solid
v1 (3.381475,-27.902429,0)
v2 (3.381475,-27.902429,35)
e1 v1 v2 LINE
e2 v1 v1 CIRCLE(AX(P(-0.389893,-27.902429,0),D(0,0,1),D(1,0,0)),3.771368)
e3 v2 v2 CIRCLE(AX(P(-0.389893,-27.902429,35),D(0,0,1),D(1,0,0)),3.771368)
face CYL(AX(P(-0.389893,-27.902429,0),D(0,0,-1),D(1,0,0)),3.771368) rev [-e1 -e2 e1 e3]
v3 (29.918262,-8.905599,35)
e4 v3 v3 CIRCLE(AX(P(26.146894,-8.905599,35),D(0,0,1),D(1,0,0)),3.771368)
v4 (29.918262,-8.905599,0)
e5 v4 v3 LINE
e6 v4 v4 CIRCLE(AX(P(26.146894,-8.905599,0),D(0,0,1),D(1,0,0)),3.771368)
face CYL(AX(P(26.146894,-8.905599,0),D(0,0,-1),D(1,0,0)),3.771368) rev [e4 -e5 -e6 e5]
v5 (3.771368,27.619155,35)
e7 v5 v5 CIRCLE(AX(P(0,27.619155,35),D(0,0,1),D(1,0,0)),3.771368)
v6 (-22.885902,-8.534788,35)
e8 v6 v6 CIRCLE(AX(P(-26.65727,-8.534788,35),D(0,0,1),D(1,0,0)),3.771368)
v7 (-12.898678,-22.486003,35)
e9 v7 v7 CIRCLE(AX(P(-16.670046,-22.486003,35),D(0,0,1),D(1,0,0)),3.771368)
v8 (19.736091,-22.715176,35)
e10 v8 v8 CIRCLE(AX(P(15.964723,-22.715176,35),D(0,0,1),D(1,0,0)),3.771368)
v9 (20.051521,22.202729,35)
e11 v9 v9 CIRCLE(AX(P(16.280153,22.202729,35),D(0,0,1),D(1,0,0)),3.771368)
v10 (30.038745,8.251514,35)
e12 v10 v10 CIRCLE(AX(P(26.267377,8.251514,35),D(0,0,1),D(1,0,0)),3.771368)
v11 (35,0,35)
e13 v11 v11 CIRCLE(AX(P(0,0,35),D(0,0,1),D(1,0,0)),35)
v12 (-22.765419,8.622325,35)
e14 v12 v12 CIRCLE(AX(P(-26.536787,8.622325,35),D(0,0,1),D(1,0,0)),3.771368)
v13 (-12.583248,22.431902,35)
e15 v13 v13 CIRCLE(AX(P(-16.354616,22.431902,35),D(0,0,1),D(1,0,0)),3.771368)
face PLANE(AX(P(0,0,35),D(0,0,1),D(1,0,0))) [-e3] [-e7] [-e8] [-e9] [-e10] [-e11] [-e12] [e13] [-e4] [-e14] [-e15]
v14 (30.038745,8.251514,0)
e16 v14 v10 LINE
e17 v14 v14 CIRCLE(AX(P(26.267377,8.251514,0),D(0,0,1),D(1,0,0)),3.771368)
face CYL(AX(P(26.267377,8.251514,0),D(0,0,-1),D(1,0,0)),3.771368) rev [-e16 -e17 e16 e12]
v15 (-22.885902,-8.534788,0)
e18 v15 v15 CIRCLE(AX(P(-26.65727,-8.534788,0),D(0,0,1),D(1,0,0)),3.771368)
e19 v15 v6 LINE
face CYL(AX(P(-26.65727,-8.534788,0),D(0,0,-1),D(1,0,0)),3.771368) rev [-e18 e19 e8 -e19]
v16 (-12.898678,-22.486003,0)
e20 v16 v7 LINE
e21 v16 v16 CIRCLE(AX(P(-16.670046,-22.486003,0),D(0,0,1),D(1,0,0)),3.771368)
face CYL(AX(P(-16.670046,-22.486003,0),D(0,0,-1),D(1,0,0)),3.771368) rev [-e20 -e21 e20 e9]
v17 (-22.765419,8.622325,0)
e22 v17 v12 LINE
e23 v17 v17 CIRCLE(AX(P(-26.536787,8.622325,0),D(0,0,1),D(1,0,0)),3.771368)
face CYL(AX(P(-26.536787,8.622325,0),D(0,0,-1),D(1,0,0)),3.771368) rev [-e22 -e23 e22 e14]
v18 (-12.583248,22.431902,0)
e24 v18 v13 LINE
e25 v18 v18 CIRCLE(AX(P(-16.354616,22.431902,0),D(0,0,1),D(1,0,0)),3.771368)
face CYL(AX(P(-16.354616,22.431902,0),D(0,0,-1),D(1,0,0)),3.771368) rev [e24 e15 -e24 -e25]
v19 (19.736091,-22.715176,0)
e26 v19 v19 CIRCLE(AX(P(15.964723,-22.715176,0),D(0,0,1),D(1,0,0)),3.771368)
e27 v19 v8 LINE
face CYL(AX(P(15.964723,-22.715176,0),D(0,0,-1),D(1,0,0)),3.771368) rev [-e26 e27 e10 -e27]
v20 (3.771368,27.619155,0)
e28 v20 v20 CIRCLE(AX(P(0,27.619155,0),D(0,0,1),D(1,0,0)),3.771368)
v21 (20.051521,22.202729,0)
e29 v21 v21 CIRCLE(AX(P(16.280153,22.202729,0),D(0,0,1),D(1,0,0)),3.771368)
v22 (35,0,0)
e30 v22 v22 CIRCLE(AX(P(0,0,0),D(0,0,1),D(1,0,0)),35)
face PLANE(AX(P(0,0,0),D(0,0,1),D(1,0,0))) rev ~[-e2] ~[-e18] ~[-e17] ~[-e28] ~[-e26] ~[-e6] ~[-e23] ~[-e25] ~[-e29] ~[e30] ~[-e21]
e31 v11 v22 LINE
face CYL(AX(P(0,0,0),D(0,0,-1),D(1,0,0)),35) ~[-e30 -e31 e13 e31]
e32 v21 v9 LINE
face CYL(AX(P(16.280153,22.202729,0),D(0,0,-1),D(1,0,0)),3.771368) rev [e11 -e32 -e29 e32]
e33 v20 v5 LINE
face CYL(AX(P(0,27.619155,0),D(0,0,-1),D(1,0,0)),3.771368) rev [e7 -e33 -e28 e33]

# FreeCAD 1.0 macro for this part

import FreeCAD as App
import Part
import Sketcher

doc = App.newDocument("Part")
params = doc.addObject("Spreadsheet::Sheet", "Params")
for row, (alias, value) in enumerate([
    ("sketch1_diameter", "70 mm"),
    ("pad1_length", "35 mm"),
    ("sketch2_diameter", "70 mm"),
    ("pad2_length", "25 mm"),
], start=1):
    params.set(f"A{row}", alias)
    params.set(f"B{row}", "=" + value)
    params.setAlias(f"B{row}", alias)

body = doc.addObject("PartDesign::Body", "Body")

# Sketch on XY plane
sketch1 = body.newObject("Sketcher::SketchObject", "Sketch")
sketch1.AttachmentSupport = (doc.getObject("XY_Plane"), [""])
sketch1.MapMode = "FlatFace"
sketch1.addGeometry([
    Part.Circle(App.Vector(0, 0, 0), App.Vector(0, 0, 1), 35),  # 0
    Part.Circle(App.Vector(-16.670046, -22.486003, 0), App.Vector(0, 0, 1), 3.771368),  # 1
    Part.Circle(App.Vector(-0.389893, -27.902429, 0), App.Vector(0, 0, 1), 3.771368),  # 2
    Part.Circle(App.Vector(-26.65727, -8.534788, 0), App.Vector(0, 0, 1), 3.771368),  # 3
    Part.Circle(App.Vector(15.964723, -22.715176, 0), App.Vector(0, 0, 1), 3.771368),  # 4
    Part.Circle(App.Vector(26.146894, -8.905599, 0), App.Vector(0, 0, 1), 3.771368),  # 5
    Part.Circle(App.Vector(-26.536787, 8.622325, 0), App.Vector(0, 0, 1), 3.771368),  # 6
    Part.Circle(App.Vector(-16.354616, 22.431902, 0), App.Vector(0, 0, 1), 3.771368),  # 7
    Part.Circle(App.Vector(26.267377, 8.251514, 0), App.Vector(0, 0, 1), 3.771368),  # 8
    Part.Circle(App.Vector(0, 27.619155, 0), App.Vector(0, 0, 1), 3.771368),  # 9
    Part.Circle(App.Vector(16.280153, 22.202729, 0), App.Vector(0, 0, 1), 3.771368),  # 10
], False)
sketch1.addConstraint([
    Sketcher.Constraint("Coincident", 0, 3, -1, 1),
    Sketcher.Constraint("Equal", 1, 2),
    Sketcher.Constraint("Equal", 2, 3),
    Sketcher.Constraint("Equal", 3, 4),
    Sketcher.Constraint("Equal", 4, 5),
    Sketcher.Constraint("Equal", 5, 6),
    Sketcher.Constraint("Equal", 6, 7),
    Sketcher.Constraint("Equal", 7, 8),
    Sketcher.Constraint("Equal", 8, 9),
    Sketcher.Constraint("Equal", 9, 10),
    Sketcher.Constraint("PointOnObject", 9, 3, -2),
    Sketcher.Constraint("Diameter", 0, 70.0),
    Sketcher.Constraint("Diameter", 1, 7.542736),
    Sketcher.Constraint("DistanceY", 5, 3, -1, 1, 8.905599),
    Sketcher.Constraint("DistanceY", 4, 3, 6, 3, 31.337501),
    Sketcher.Constraint("DistanceY", 2, 3, -1, 1, 27.902429),
    Sketcher.Constraint("DistanceX", 3, 3, -1, 1, 26.65727),
    Sketcher.Constraint("DistanceY", 3, 3, -1, 1, 8.534788),
    Sketcher.Constraint("DistanceY", -1, 1, 10, 3, 22.202729),
    Sketcher.Constraint("DistanceX", 1, 3, 4, 3, 32.634769),
    Sketcher.Constraint("DistanceX", 4, 3, 5, 3, 10.182171),
    Sketcher.Constraint("DistanceX", 6, 3, 1, 3, 9.866741),
    Sketcher.Constraint("DistanceY", 1, 3, 6, 3, 31.108328),
    Sketcher.Constraint("DistanceX", 6, 3, 7, 3, 10.182171),
    Sketcher.Constraint("DistanceY", 3, 3, 7, 3, 30.96669),
    Sketcher.Constraint("DistanceY", 4, 3, 8, 3, 30.96669),
    Sketcher.Constraint("DistanceX", 2, 3, 8, 3, 26.65727),
    Sketcher.Constraint("DistanceY", 8, 3, 7, 3, 14.180388),
    Sketcher.Constraint("DistanceY", 8, 3, 9, 3, 19.367641),
    Sketcher.Constraint("DistanceX", 10, 3, 5, 3, 9.866741),
    Sketcher.Constraint("DistanceX", 1, 3, -1, 1, 16.670046),
    Sketcher.Constraint("DistanceX", 2, 3, -1, 1, 0.389893),
])
sketch1.setExpression("Constraints[11]", "Params.sketch1_diameter")
pad1 = body.newObject("PartDesign::Pad", "Pad")
pad1.Profile = sketch1
pad1.setExpression("Length", "Params.pad1_length")

# Sketch on XY plane
sketch2 = body.newObject("Sketcher::SketchObject", "Sketch001")
sketch2.AttachmentSupport = (doc.getObject("XY_Plane"), [""])
sketch2.MapMode = "FlatFace"
sketch2.addGeometry([
    Part.Circle(App.Vector(0, 0, 0), App.Vector(0, 0, 1), 35),  # 0
    Part.Circle(App.Vector(-16.670046, -22.486003, 0), App.Vector(0, 0, 1), 3.771368),  # 1
    Part.Circle(App.Vector(-0.389893, -27.902429, 0), App.Vector(0, 0, 1), 3.771368),  # 2
    Part.Circle(App.Vector(-26.65727, -8.534788, 0), App.Vector(0, 0, 1), 3.771368),  # 3
    Part.Circle(App.Vector(15.964723, -22.715176, 0), App.Vector(0, 0, 1), 3.771368),  # 4
    Part.Circle(App.Vector(26.146894, -8.905599, 0), App.Vector(0, 0, 1), 3.771368),  # 5
    Part.Circle(App.Vector(-26.536787, 8.622325, 0), App.Vector(0, 0, 1), 3.771368),  # 6
    Part.Circle(App.Vector(-16.354616, 22.431902, 0), App.Vector(0, 0, 1), 3.771368),  # 7
    Part.Circle(App.Vector(26.267377, 8.251514, 0), App.Vector(0, 0, 1), 3.771368),  # 8
    Part.Circle(App.Vector(0, 27.619155, 0), App.Vector(0, 0, 1), 3.771368),  # 9
    Part.Circle(App.Vector(16.280153, 22.202729, 0), App.Vector(0, 0, 1), 3.771368),  # 10
], False)
sketch2.addConstraint([
    Sketcher.Constraint("Coincident", 0, 3, -1, 1),
    Sketcher.Constraint("Equal", 1, 2),
    Sketcher.Constraint("Equal", 2, 3),
    Sketcher.Constraint("Equal", 3, 4),
    Sketcher.Constraint("Equal", 4, 5),
    Sketcher.Constraint("Equal", 5, 6),
    Sketcher.Constraint("Equal", 6, 7),
    Sketcher.Constraint("Equal", 7, 8),
    Sketcher.Constraint("Equal", 8, 9),
    Sketcher.Constraint("Equal", 9, 10),
    Sketcher.Constraint("PointOnObject", 9, 3, -2),
    Sketcher.Constraint("Diameter", 0, 70.0),
    Sketcher.Constraint("Diameter", 1, 7.542736),
    Sketcher.Constraint("DistanceY", 5, 3, -1, 1, 8.905599),
    Sketcher.Constraint("DistanceY", 4, 3, 6, 3, 31.337501),
    Sketcher.Constraint("DistanceY", 2, 3, -1, 1, 27.902429),
    Sketcher.Constraint("DistanceX", 3, 3, -1, 1, 26.65727),
    Sketcher.Constraint("DistanceY", 3, 3, -1, 1, 8.534788),
    Sketcher.Constraint("DistanceY", -1, 1, 10, 3, 22.202729),
    Sketcher.Constraint("DistanceX", 1, 3, 4, 3, 32.634769),
    Sketcher.Constraint("DistanceX", 4, 3, 5, 3, 10.182171),
    Sketcher.Constraint("DistanceX", 6, 3, 1, 3, 9.866741),
    Sketcher.Constraint("DistanceY", 1, 3, 6, 3, 31.108328),
    Sketcher.Constraint("DistanceX", 6, 3, 7, 3, 10.182171),
    Sketcher.Constraint("DistanceY", 3, 3, 7, 3, 30.96669),
    Sketcher.Constraint("DistanceY", 4, 3, 8, 3, 30.96669),
    Sketcher.Constraint("DistanceX", 2, 3, 8, 3, 26.65727),
    Sketcher.Constraint("DistanceY", 8, 3, 7, 3, 14.180388),
    Sketcher.Constraint("DistanceY", 8, 3, 9, 3, 19.367641),
    Sketcher.Constraint("DistanceX", 10, 3, 5, 3, 9.866741),
    Sketcher.Constraint("DistanceX", 1, 3, -1, 1, 16.670046),
    Sketcher.Constraint("DistanceX", 2, 3, -1, 1, 0.389893),
])
sketch2.setExpression("Constraints[11]", "Params.sketch2_diameter")
pad2 = body.newObject("PartDesign::Pad", "Pad001")
pad2.Profile = sketch2
pad2.setExpression("Length", "Params.pad2_length")

doc.recompute()
